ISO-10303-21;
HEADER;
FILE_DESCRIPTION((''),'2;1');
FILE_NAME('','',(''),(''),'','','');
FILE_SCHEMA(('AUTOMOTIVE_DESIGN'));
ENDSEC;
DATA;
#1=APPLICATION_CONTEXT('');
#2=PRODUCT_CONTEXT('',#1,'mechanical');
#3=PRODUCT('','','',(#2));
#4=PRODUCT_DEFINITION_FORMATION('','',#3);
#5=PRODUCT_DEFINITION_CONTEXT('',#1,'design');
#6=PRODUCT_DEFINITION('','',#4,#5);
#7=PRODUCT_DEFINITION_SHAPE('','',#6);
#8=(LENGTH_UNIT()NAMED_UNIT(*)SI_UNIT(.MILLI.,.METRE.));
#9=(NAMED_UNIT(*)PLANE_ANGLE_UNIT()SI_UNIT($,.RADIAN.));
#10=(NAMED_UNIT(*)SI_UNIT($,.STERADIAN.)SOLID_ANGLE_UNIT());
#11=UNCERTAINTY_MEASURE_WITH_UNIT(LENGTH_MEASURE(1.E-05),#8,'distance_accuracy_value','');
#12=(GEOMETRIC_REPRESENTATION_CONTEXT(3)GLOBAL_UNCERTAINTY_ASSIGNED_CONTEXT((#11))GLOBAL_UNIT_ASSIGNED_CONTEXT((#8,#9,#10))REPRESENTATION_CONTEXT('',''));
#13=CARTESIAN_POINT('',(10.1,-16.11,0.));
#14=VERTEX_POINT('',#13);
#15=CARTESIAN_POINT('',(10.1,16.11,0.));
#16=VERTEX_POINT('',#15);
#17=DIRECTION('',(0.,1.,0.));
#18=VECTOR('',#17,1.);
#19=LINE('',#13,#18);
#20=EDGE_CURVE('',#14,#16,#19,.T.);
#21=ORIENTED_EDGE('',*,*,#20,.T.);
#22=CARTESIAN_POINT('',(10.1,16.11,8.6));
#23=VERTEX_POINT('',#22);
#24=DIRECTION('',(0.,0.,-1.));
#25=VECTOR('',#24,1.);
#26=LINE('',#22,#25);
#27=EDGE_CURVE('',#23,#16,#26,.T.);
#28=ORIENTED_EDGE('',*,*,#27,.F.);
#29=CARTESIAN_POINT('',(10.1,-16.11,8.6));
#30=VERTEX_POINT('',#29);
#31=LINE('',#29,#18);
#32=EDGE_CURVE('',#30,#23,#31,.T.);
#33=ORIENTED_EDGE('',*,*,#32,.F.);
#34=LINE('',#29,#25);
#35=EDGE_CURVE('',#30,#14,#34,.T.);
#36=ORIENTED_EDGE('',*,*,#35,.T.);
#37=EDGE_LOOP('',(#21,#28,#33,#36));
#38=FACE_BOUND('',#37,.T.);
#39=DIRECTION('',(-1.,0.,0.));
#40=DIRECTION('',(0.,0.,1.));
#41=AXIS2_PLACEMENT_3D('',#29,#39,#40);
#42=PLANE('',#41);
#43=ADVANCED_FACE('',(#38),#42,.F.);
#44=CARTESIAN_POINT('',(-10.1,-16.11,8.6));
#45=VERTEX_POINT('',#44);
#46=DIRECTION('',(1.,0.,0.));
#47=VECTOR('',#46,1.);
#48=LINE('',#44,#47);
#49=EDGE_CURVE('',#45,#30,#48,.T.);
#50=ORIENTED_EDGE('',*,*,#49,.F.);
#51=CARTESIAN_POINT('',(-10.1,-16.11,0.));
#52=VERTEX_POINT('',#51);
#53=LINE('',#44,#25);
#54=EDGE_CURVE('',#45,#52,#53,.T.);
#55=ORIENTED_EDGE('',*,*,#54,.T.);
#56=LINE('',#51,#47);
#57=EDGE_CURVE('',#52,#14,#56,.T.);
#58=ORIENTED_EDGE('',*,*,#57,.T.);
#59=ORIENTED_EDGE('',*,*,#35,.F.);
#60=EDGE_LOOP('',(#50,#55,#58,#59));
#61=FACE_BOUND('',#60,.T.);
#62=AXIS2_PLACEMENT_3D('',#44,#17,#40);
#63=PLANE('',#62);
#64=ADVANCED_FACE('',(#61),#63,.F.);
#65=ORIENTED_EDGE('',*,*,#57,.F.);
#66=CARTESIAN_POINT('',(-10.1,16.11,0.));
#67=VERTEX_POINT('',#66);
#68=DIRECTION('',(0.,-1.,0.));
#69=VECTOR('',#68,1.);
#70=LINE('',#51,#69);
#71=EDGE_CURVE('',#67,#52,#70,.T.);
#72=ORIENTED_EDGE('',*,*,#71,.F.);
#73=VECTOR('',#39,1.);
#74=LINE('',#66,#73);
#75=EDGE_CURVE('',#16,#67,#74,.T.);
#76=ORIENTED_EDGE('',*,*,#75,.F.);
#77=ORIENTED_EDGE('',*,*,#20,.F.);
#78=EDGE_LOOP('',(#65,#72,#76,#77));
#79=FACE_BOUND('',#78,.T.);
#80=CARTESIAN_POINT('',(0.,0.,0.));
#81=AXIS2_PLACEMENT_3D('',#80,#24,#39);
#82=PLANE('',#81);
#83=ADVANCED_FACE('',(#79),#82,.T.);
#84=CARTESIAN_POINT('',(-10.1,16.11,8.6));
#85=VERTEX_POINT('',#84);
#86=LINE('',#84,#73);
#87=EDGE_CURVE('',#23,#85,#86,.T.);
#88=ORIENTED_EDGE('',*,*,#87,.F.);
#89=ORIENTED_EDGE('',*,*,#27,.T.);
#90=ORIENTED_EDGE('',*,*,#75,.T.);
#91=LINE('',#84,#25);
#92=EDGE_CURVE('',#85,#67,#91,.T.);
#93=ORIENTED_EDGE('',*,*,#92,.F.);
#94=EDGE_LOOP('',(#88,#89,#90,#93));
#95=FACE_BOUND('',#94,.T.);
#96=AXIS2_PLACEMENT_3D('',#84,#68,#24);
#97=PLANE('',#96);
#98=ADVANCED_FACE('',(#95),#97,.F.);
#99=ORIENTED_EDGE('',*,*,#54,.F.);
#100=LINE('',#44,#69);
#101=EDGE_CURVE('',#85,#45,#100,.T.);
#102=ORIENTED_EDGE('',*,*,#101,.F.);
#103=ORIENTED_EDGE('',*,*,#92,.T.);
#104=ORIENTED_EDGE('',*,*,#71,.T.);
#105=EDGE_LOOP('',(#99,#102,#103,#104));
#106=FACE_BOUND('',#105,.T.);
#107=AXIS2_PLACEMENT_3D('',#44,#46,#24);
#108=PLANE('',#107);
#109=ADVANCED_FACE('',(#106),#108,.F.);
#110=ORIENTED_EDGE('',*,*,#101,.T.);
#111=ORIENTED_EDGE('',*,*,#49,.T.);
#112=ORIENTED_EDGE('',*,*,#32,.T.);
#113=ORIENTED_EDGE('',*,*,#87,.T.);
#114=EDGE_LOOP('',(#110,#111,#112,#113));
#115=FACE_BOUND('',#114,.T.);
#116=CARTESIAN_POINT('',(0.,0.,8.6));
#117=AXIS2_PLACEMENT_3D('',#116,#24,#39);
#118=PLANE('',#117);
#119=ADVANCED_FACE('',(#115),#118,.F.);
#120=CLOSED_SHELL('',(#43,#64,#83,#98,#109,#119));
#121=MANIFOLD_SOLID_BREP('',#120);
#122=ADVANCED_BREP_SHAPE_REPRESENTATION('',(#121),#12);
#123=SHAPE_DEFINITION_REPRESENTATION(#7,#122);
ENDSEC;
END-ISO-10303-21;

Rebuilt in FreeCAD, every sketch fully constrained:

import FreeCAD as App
import Part
import Sketcher
from FreeCAD import Vector


def add_polygon(sketch, points):
    """Adds a closed chain of lines whose ends are joined by coincident constraints."""
    first, n = sketch.GeometryCount, len(points)
    for a, b in zip(points, points[1:] + points[:1]):
        sketch.addGeometry(Part.LineSegment(App.Vector(*a, 0), App.Vector(*b, 0)), False)
    for i in range(n):
        sketch.addConstraint(Sketcher.Constraint("Coincident", first + i, 2, first + (i + 1) % n, 1))

doc = App.newDocument("Part")
body = doc.addObject("PartDesign::Body", "Body")

# Sketch on XY plane
sketch1 = body.newObject("Sketcher::SketchObject", "Sketch")
sketch1.AttachmentSupport = (doc.getObject("XY_Plane"), [""])
sketch1.MapMode = "FlatFace"
add_polygon(sketch1, [(-10, 16), (-10, -16), (10, -16), (10, 16)])  # lines 0-3
sketch1.addConstraint([
    Sketcher.Constraint("Vertical", 0),
    Sketcher.Constraint("Horizontal", 1),
    Sketcher.Constraint("Vertical", 2),
    Sketcher.Constraint("Horizontal", 3),
    Sketcher.Constraint("Symmetric", 0, 2, 2, 2, -1, 1),
    Sketcher.Constraint("DistanceX", 1, 1, 1, 2, 20.2),
    Sketcher.Constraint("DistanceY", 0, 2, 0, 1, 32.22),
])
pad1 = body.newObject("PartDesign::Pad", "Pad")
pad1.Profile = sketch1
pad1.Length = 8.6

doc.recompute()
